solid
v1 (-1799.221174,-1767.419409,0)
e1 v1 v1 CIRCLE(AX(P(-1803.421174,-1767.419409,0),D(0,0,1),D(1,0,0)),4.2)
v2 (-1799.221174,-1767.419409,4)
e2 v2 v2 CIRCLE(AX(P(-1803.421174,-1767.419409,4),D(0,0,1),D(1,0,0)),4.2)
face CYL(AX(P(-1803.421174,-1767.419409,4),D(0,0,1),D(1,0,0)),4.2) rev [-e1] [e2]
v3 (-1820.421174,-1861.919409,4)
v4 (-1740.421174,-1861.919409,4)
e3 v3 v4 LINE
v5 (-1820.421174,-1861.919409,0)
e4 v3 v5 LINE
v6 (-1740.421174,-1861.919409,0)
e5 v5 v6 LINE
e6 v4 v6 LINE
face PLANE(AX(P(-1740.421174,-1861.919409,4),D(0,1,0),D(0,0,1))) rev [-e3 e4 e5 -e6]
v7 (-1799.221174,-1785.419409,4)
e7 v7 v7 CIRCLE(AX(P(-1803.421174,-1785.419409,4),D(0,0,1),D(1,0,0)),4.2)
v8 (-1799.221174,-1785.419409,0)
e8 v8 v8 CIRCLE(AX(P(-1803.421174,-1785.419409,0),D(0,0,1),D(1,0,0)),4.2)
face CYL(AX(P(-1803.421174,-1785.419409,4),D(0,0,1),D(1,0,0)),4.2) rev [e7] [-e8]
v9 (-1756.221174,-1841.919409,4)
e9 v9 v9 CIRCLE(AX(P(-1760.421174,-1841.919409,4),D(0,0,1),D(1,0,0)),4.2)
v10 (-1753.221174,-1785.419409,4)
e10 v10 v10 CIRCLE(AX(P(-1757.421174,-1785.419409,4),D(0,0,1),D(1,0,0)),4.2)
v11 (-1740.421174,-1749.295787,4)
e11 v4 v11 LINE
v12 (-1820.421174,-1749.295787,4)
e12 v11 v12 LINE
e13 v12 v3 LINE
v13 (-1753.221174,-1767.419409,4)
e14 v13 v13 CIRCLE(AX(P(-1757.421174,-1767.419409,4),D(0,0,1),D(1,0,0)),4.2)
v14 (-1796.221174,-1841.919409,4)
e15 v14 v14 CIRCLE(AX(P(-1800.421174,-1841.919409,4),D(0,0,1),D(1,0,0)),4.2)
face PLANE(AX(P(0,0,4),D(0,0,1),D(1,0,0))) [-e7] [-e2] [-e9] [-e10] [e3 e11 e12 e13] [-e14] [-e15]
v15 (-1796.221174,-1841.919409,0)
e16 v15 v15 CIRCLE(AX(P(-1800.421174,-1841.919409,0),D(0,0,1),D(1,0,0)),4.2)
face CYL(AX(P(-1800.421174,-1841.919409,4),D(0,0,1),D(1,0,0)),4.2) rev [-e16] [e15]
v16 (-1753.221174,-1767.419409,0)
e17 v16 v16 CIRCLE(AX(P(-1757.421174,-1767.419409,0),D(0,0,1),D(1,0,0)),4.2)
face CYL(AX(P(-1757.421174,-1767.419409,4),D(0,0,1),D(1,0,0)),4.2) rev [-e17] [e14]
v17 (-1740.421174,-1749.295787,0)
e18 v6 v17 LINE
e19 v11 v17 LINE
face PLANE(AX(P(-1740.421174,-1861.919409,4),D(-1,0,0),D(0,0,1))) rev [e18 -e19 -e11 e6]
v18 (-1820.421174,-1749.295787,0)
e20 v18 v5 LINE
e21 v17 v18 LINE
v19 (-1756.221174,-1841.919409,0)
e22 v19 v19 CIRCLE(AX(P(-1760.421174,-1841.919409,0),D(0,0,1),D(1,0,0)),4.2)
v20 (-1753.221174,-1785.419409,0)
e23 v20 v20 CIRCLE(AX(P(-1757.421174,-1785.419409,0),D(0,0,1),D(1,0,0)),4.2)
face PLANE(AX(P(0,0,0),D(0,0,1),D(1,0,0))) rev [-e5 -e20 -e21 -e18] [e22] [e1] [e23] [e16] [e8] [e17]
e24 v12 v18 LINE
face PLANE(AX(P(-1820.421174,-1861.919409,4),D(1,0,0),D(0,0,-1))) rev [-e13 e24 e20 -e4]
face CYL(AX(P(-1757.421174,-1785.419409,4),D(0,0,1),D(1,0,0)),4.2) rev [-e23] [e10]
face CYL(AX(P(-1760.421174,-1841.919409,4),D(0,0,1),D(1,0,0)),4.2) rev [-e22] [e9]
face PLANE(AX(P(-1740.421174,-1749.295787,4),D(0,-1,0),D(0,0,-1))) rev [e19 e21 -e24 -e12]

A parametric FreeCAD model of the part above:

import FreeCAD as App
import Part
import Sketcher
from FreeCAD import Vector


def add_polygon(sketch, points):
    """Adds a closed chain of lines whose ends are joined by coincident constraints."""
    first, n = sketch.GeometryCount, len(points)
    for a, b in zip(points, points[1:] + points[:1]):
        sketch.addGeometry(Part.LineSegment(App.Vector(*a, 0), App.Vector(*b, 0)), False)
    for i in range(n):
        sketch.addConstraint(Sketcher.Constraint("Coincident", first + i, 2, first + (i + 1) % n, 1))

doc = App.newDocument("Part")
body = doc.addObject("PartDesign::Body", "Body")

sketch1 = doc.addObject("Sketcher::SketchObject", "Sketch")
body.addObject(sketch1)
sketch1.AttachmentSupport = (doc.XY_Plane, [""])
sketch1.MapMode = "FlatFace"
add_polygon(sketch1, [(-1820, -1749), (-1820, -1862), (-1740, -1862), (-1740, -1749)])
sketch1.addConstraint([
    Sketcher.Constraint("Vertical", 0),
    Sketcher.Constraint("Horizontal", 1),
    Sketcher.Constraint("Vertical", 2),
    Sketcher.Constraint("Horizontal", 3),
    Sketcher.Constraint("DistanceX", 1, 1, 1, 2, 80.0),
    Sketcher.Constraint("DistanceY", 0, 2, 0, 1, 112.623623),
    Sketcher.Constraint("DistanceY", 0, 2, -1, 1, 1861.919409),
    Sketcher.Constraint("DistanceX", 0, 2, -1, 1, 1820.421174),
])
pad1 = doc.addObject("PartDesign::Pad", "Pad")
body.addObject(pad1)
pad1.Profile = sketch1
pad1.Length = 4

sketch2 = doc.addObject("Sketcher::SketchObject", "Sketch001")
body.addObject(sketch2)
sketch2.AttachmentSupport = (doc.XY_Plane, [""])
sketch2.MapMode = "FlatFace"
sketch2.AttachmentOffset = App.Placement(Vector(0, 0, 4), App.Rotation())
sketch2.addGeometry([
    Part.Circle(Vector(-1760.4, -1841.9, 0), Vector(0, 0, 1), 4.2),
    Part.Circle(Vector(-1803.4, -1767.4, 0), Vector(0, 0, 1), 4.2),
    Part.Circle(Vector(-1800.4, -1841.9, 0), Vector(0, 0, 1), 4.2),
    Part.Circle(Vector(-1757.4, -1785.4, 0), Vector(0, 0, 1), 4.2),
    Part.Circle(Vector(-1757.4, -1767.4, 0), Vector(0, 0, 1), 4.2),
    Part.Circle(Vector(-1803.4, -1785.4, 0), Vector(0, 0, 1), 4.2),
], False)
sketch2.addConstraint([
    Sketcher.Constraint("Equal", 0, 1),
    Sketcher.Constraint("Equal", 1, 2),
    Sketcher.Constraint("Equal", 2, 3),
    Sketcher.Constraint("Equal", 3, 4),
    Sketcher.Constraint("Equal", 4, 5),
    Sketcher.Constraint("Horizontal", 0, 3, 2, 3),
    Sketcher.Constraint("Horizontal", 1, 3, 4, 3),
    Sketcher.Constraint("Horizontal", 3, 3, 5, 3),
    Sketcher.Constraint("Vertical", 3, 3, 4, 3),
    Sketcher.Constraint("Vertical", 1, 3, 5, 3),
    Sketcher.Constraint("Diameter", 0, 8.4),
    Sketcher.Constraint("DistanceX", 1, 3, 0, 3, 43.0),
    Sketcher.Constraint("DistanceX", 2, 3, 0, 3, 40.0),
    Sketcher.Constraint("DistanceX", 1, 3, 3, 3, 46.0),
    Sketcher.Constraint("DistanceY", 3, 3, 1, 3, 18.0),
    Sketcher.Constraint("DistanceY", 0, 3, 1, 3, 74.5),
    Sketcher.Constraint("DistanceY", 0, 3, -1, 1, 1841.919409),
    Sketcher.Constraint("DistanceX", 0, 3, -1, 1, 1760.421174),
])
doc.recompute()
hole = doc.addObject("PartDesign::Hole", "Hole")
body.addObject(hole)
hole.Profile = sketch2
hole.ThreadType = "None"
hole.Diameter = 8.4
hole.DepthType = "ThroughAll"

doc.recompute()
